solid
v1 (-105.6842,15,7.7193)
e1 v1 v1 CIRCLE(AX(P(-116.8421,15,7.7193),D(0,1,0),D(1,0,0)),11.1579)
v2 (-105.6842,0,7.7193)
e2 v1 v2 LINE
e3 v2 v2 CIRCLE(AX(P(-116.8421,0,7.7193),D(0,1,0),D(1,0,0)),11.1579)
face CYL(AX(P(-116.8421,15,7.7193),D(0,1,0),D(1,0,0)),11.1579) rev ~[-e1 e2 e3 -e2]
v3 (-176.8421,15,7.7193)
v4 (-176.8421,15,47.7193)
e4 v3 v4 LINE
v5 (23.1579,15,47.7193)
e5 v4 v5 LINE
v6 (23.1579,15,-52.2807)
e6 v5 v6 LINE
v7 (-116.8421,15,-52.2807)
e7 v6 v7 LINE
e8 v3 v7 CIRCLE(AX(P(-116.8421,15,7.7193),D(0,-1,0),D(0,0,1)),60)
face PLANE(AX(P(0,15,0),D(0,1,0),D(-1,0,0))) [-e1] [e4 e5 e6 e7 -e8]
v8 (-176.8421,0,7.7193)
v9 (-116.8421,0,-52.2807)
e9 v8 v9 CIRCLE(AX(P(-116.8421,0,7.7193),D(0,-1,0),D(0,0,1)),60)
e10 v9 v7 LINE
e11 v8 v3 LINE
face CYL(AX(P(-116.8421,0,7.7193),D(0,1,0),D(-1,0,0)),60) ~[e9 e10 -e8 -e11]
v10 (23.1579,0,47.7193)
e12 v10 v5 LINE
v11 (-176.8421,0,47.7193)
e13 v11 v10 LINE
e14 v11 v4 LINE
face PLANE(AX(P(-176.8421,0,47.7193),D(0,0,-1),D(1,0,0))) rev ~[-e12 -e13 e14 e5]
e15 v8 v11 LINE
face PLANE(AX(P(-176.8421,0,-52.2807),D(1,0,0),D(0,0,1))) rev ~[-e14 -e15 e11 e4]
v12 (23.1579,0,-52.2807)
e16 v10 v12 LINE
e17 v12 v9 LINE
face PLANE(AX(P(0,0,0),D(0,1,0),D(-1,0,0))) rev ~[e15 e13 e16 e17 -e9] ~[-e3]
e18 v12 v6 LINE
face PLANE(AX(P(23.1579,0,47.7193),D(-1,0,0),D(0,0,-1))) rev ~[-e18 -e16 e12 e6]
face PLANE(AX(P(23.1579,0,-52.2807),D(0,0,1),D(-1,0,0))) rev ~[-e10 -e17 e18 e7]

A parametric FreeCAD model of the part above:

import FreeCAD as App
import Part
import Sketcher
Q = App.Units.Quantity


def edges_at(feature, points):
    """Names of the edges that pass closest to the given points."""
    edges = feature.Shape.Edges
    near = lambda p: min(range(len(edges)), key=lambda i: edges[i].distToShape(Part.Vertex(*p))[0])
    return sorted({f"Edge{near(p) + 1}" for p in points})


def add_polygon(sketch, points):
    """Adds a closed chain of lines whose ends are joined by coincident constraints."""
    first, n = sketch.GeometryCount, len(points)
    for a, b in zip(points, points[1:] + points[:1]):
        sketch.addGeometry(Part.LineSegment(App.Vector(*a, 0), App.Vector(*b, 0)), False)
    for i in range(n):
        sketch.addConstraint(Sketcher.Constraint("Coincident", first + i, 2, first + (i + 1) % n, 1))

doc = App.newDocument("Part")
body = doc.addObject("PartDesign::Body", "Body")

sketch1 = doc.addObject("Sketcher::SketchObject", "Sketch")
body.addObject(sketch1)
sketch1.AttachmentSupport = (doc.XZ_Plane, [""])
sketch1.MapMode = "FlatFace"
add_polygon(sketch1, [(-177, -52), (-177, 48), (23, 48), (23, -52)])
sketch1.addConstraint([
    Sketcher.Constraint("Vertical", 0),
    Sketcher.Constraint("Horizontal", 1),
    Sketcher.Constraint("Vertical", 2),
    Sketcher.Constraint("Horizontal", 3),
    Sketcher.Constraint("DistanceX", 1, 1, 1, 2, Q("200 mm")),
    Sketcher.Constraint("DistanceY", 0, 1, 0, 2, Q("100 mm")),
    Sketcher.Constraint("DistanceX", 0, 2, -1, 1, Q("176.842 mm")),
    Sketcher.Constraint("DistanceY", -1, 1, 0, 2, Q("47.7193 mm")),
])
pad1 = doc.addObject("PartDesign::Pad", "Pad")
body.addObject(pad1)
pad1.Profile = sketch1
pad1.Length = 15
pad1.Reversed = True
doc.recompute()

fillet = doc.addObject("PartDesign::Fillet", "Fillet")
body.addObject(fillet)
fillet.Base = (pad1, edges_at(pad1, [(-176.842, 7.5, -52.281)]))
fillet.Radius = 60

sketch2 = doc.addObject("Sketcher::SketchObject", "Sketch001")
body.addObject(sketch2)
sketch2.AttachmentSupport = (doc.XZ_Plane, [""])
sketch2.MapMode = "FlatFace"
sketch2.AttachmentOffset = App.Placement(App.Vector(0, 0, -15), App.Rotation())
sketch2.addGeometry(Part.Circle(App.Vector(-117, 8, 0), App.Vector(0, 0, 1), 11), False)
sketch2.addConstraint([
    Sketcher.Constraint("Diameter", 0, Q("22.3158 mm")),
    Sketcher.Constraint("DistanceX", 0, 3, -1, 1, Q("116.842 mm")),
    Sketcher.Constraint("DistanceY", -1, 1, 0, 3, Q("7.7193 mm")),
])
pocket1 = doc.addObject("PartDesign::Pocket", "Pocket")
body.addObject(pocket1)
pocket1.Profile = sketch2
pocket1.Length = 15
pocket1.Reversed = True

doc.recompute()
